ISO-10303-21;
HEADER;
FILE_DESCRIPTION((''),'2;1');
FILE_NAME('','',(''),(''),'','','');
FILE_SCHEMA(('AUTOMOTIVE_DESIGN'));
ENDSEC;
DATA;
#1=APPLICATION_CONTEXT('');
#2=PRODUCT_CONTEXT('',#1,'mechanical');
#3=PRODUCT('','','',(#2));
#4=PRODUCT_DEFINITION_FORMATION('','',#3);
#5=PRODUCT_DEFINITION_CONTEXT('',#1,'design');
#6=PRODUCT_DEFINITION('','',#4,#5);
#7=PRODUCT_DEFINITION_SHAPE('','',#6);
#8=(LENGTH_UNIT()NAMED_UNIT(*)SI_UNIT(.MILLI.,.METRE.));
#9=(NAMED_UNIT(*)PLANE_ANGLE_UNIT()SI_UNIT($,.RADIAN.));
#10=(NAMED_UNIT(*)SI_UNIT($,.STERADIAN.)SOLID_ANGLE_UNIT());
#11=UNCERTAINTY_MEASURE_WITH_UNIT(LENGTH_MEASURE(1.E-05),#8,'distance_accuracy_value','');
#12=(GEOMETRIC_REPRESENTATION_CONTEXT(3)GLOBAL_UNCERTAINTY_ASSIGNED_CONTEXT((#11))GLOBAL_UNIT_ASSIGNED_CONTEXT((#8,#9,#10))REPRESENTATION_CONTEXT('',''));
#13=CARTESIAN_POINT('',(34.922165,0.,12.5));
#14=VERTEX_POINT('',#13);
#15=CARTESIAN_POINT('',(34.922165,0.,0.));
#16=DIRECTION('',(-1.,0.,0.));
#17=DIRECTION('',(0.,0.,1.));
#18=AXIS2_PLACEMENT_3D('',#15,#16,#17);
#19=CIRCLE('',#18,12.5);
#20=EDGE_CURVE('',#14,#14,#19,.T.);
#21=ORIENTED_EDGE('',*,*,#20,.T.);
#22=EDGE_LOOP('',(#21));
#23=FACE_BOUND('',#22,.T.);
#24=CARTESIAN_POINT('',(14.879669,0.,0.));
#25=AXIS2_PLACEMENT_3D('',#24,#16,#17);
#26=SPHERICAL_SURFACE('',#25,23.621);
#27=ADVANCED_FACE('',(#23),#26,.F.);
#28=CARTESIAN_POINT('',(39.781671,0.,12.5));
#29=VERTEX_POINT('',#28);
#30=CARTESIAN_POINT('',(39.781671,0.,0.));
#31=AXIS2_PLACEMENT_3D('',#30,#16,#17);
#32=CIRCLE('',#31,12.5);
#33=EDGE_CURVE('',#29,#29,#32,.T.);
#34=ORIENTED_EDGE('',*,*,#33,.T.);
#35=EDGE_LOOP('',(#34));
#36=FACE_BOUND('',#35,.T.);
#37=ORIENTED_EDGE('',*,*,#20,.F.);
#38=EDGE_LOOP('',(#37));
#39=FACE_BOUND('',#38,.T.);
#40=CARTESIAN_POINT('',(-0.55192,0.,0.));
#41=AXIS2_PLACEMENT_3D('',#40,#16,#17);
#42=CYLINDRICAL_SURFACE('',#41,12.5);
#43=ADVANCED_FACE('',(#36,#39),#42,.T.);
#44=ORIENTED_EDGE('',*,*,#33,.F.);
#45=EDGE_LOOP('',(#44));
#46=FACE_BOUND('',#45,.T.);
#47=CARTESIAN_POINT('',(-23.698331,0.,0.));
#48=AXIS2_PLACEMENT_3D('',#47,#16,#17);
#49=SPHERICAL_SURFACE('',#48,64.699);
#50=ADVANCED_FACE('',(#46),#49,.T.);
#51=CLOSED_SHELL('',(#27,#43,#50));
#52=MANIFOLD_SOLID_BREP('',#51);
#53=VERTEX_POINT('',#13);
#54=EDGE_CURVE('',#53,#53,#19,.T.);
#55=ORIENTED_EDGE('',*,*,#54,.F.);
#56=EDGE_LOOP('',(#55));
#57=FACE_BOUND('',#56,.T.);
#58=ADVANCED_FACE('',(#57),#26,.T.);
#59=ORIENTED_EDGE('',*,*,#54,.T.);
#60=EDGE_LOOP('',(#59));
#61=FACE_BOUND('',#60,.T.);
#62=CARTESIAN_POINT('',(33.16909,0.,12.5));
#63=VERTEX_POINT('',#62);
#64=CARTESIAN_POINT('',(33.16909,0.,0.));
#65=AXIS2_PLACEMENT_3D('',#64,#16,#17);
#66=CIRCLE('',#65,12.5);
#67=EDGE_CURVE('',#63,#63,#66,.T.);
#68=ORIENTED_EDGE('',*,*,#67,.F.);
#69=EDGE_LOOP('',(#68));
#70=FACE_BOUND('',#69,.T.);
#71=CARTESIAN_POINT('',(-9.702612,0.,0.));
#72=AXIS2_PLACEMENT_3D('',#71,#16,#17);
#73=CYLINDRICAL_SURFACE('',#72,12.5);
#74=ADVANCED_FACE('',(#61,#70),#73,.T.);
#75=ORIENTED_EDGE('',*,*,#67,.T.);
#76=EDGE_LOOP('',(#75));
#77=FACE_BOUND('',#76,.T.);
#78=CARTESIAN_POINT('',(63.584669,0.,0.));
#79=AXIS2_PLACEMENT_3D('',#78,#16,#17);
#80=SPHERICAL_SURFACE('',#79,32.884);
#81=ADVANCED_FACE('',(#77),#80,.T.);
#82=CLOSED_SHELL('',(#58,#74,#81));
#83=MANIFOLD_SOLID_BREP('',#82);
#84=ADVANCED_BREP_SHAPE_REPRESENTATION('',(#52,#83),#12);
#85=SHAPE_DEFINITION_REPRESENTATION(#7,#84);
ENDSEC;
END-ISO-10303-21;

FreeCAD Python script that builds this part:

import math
import FreeCAD as App
import Part
import Sketcher

V = App.Vector
Q = App.Units.Quantity

doc = App.newDocument("Part")
params = doc.addObject("Spreadsheet::Sheet", "Params")
for row, (alias, value) in enumerate([
    ("sketch1_width", "7.8 mm"),
    ("revolution_angle", "360 deg"),
    ("sketch2_width", "2.5 mm"),
    ("revolution2_angle", "360 deg"),
], start=1):
    params.set(f"A{row}", alias)
    params.set(f"B{row}", "=" + value)
    params.setAlias(f"B{row}", alias)

body = doc.addObject("PartDesign::Body", "Body")

sketch1 = body.newObject("Sketcher::SketchObject", "Sketch")
sketch1.AttachmentSupport = (doc.getObject("XZ_Plane"), [""])
sketch1.MapMode = "FlatFace"
sketch1.addGeometry([
    Part.ArcOfCircle(Part.Circle(V(63.6, 0, 0), V(0, 0, 1), 32.9), math.radians(180), math.radians(202)),
    Part.LineSegment(V(30.7, 0, 0), V(38.5, 0, 0)),
    Part.ArcOfCircle(Part.Circle(V(14.9, 0, 0), V(0, 0, 1), 23.6), math.radians(-32), math.radians(0)),
    Part.LineSegment(V(34.9, -12.5, 0), V(33.2, -12.5, 0)),
], False)
sketch1.addConstraint([
    Sketcher.Constraint("Coincident", 0, 1, 1, 1),
    Sketcher.Constraint("Coincident", 1, 2, 2, 2),
    Sketcher.Constraint("Coincident", 2, 1, 3, 1),
    Sketcher.Constraint("Coincident", 3, 2, 0, 2),
    Sketcher.Constraint("Horizontal", 1),
    Sketcher.Constraint("Horizontal", 3),
    Sketcher.Constraint("PointOnObject", 0, 3, -1),
    Sketcher.Constraint("PointOnObject", 2, 3, -1),
    Sketcher.Constraint("PointOnObject", 0, 1, -1),
    Sketcher.Constraint("DistanceX", 1, 1, 1, 2, Q("7.8 mm")),
    Sketcher.Constraint("Radius", 0, Q("32.884 mm")),
    Sketcher.Constraint("Radius", 2, Q("23.621 mm")),
    Sketcher.Constraint("DistanceY", 2, 1, -1, 1, Q("12.5 mm")),
    Sketcher.Constraint("DistanceX", -1, 1, 0, 3, Q("63.584669 mm")),
])
sketch1.setExpression("Constraints[9]", "Params.sketch1_width")
revolution = body.newObject("PartDesign::Revolution", "Revolution")
revolution.Profile = sketch1
revolution.ReferenceAxis = (sketch1, ["H_Axis"])
revolution.setExpression("Angle", "Params.revolution_angle")
body2 = doc.addObject("PartDesign::Body", "Body001")

sketch2 = body2.newObject("Sketcher::SketchObject", "Sketch001")
sketch2.AttachmentSupport = (doc.getObject("XZ_Plane001"), [""])
sketch2.MapMode = "FlatFace"
sketch2.addGeometry([
    Part.LineSegment(V(39.8, -12.5, 0), V(34.9, -12.5, 0)),
    Part.ArcOfCircle(Part.Circle(V(14.9, 0, 0), V(0, 0, 1), 23.6), math.radians(-32), math.radians(0)),
    Part.LineSegment(V(38.5, 0, 0), V(41, 0, 0)),
    Part.ArcOfCircle(Part.Circle(V(-23.7, 0, 0), V(0, 0, 1), 64.7), math.radians(-11.14), math.radians(0)),
], False)
sketch2.addConstraint([
    Sketcher.Constraint("Coincident", 0, 2, 1, 1),
    Sketcher.Constraint("Coincident", 1, 2, 2, 1),
    Sketcher.Constraint("Coincident", 2, 2, 3, 2),
    Sketcher.Constraint("Coincident", 3, 1, 0, 1),
    Sketcher.Constraint("Horizontal", 0),
    Sketcher.Constraint("Horizontal", 2),
    Sketcher.Constraint("PointOnObject", 1, 3, -1),
    Sketcher.Constraint("PointOnObject", 3, 3, -1),
    Sketcher.Constraint("PointOnObject", 1, 2, -1),
    Sketcher.Constraint("DistanceX", 2, 1, 2, 2, Q("2.5 mm")),
    Sketcher.Constraint("Radius", 1, Q("23.621 mm")),
    Sketcher.Constraint("Radius", 3, Q("64.699 mm")),
    Sketcher.Constraint("DistanceY", 0, 2, -1, 1, Q("12.5 mm")),
    Sketcher.Constraint("DistanceX", -1, 1, 1, 3, Q("14.879669 mm")),
])
sketch2.setExpression("Constraints[9]", "Params.sketch2_width")
revolution2 = body2.newObject("PartDesign::Revolution", "Revolution001")
revolution2.Profile = sketch2
revolution2.ReferenceAxis = (sketch2, ["H_Axis"])
revolution2.setExpression("Angle", "Params.revolution2_angle")

doc.recompute()
